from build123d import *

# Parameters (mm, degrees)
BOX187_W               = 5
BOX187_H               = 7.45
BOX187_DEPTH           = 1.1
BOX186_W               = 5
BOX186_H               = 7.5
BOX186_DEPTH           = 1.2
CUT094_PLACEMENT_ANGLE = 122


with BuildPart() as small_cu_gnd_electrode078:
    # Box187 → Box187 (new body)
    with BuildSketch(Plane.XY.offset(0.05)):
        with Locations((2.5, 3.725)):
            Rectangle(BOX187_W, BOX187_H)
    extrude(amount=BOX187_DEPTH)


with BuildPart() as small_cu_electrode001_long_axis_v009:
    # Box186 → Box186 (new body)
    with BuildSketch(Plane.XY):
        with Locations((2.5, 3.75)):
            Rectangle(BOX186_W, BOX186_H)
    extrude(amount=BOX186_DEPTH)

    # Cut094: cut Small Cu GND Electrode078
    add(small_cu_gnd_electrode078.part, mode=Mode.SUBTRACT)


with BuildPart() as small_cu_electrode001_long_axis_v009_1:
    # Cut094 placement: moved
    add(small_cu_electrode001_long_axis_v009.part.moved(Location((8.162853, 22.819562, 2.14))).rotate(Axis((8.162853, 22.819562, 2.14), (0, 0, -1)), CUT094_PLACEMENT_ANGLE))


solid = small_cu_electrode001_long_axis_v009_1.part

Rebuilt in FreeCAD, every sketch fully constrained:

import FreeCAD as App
import Part
import Sketcher


def add_polygon(sketch, points):
    """Adds a closed chain of lines whose ends are joined by coincident constraints."""
    first, n = sketch.GeometryCount, len(points)
    for a, b in zip(points, points[1:] + points[:1]):
        sketch.addGeometry(Part.LineSegment(App.Vector(*a, 0), App.Vector(*b, 0)), False)
    for i in range(n):
        sketch.addConstraint(Sketcher.Constraint("Coincident", first + i, 2, first + (i + 1) % n, 1))

doc = App.newDocument("Part")
body = doc.addObject("PartDesign::Body", "Body")

# Sketch on XY plane
sketch1 = body.newObject("Sketcher::SketchObject", "Sketch")
sketch1.AttachmentSupport = (doc.getObject("XY_Plane"), [""])
sketch1.MapMode = "FlatFace"
sketch1.AttachmentOffset = App.Placement(App.Vector(0, 0, 0.05), App.Rotation())
add_polygon(sketch1, [(0, 7), (0, 0), (5, 0), (5, 7)])  # lines 0-3
sketch1.addConstraint([
    Sketcher.Constraint("Vertical", 0),
    Sketcher.Constraint("Horizontal", 1),
    Sketcher.Constraint("Vertical", 2),
    Sketcher.Constraint("Horizontal", 3),
    Sketcher.Constraint("Coincident", 0, 2, -1, 1),
    Sketcher.Constraint("DistanceX", 1, 1, 1, 2, 5.0),
    Sketcher.Constraint("DistanceY", 0, 2, 0, 1, 7.45),
])
pad1 = body.newObject("PartDesign::Pad", "Pad")
pad1.Profile = sketch1
pad1.Length = 1.1
body2 = doc.addObject("PartDesign::Body", "Body001")

# Sketch on XY plane
sketch2 = body2.newObject("Sketcher::SketchObject", "Sketch001")
sketch2.AttachmentSupport = (doc.getObject("XY_Plane001"), [""])
sketch2.MapMode = "FlatFace"
add_polygon(sketch2, [(0, 8), (0, 0), (5, 0), (5, 8)])  # lines 0-3
sketch2.addConstraint([
    Sketcher.Constraint("Vertical", 0),
    Sketcher.Constraint("Horizontal", 1),
    Sketcher.Constraint("Vertical", 2),
    Sketcher.Constraint("Horizontal", 3),
    Sketcher.Constraint("Coincident", 0, 2, -1, 1),
    Sketcher.Constraint("DistanceX", 1, 1, 1, 2, 5.0),
    Sketcher.Constraint("DistanceY", 0, 2, 0, 1, 7.5),
])
pad2 = body2.newObject("PartDesign::Pad", "Pad001")
pad2.Profile = sketch2
pad2.Length = 1.2
doc.recompute()

boolean = body2.newObject("PartDesign::Boolean", "Boolean")
boolean.Type = "Cut"
boolean.addObjects([body])
body3 = doc.addObject("PartDesign::Body", "Body002")
doc.recompute()

body2.Placement = App.Placement(App.Vector(8.162853, 22.819562, 2.14), App.Rotation(App.Vector(0, 0, -1), 122))
boolean2 = body3.newObject("PartDesign::Boolean", "Boolean001")
boolean2.Type = "Fuse"
boolean2.addObjects([body2])

doc.recompute()
